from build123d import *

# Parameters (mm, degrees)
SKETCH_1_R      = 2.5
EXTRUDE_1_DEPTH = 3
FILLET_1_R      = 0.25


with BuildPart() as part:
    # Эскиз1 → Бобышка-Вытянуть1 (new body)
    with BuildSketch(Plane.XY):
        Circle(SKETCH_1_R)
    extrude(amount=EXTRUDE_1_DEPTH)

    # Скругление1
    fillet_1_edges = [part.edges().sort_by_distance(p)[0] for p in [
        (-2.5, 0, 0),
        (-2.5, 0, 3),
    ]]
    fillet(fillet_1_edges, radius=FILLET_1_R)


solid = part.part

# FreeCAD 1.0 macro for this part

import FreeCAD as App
import Part
import Sketcher

V = App.Vector


def edges_at(feature, points):
    """Names of the edges that pass closest to the given points."""
    edges = feature.Shape.Edges
    near = lambda p: min(range(len(edges)), key=lambda i: edges[i].distToShape(Part.Vertex(*p))[0])
    return sorted({f"Edge{near(p) + 1}" for p in points})

doc = App.newDocument("Part")
body = doc.addObject("PartDesign::Body", "Body")

sketch1 = body.newObject("Sketcher::SketchObject", "Sketch")
sketch1.AttachmentSupport = (doc.getObject("XY_Plane"), [""])
sketch1.MapMode = "FlatFace"
sketch1.addGeometry(Part.Circle(V(0, 0, 0), V(0, 0, 1), 2.5), False)
sketch1.addConstraint([
    Sketcher.Constraint("Coincident", 0, 3, -1, 1),
    Sketcher.Constraint("Diameter", 0, 5.0),
])
pad1 = body.newObject("PartDesign::Pad", "Pad")
pad1.Profile = sketch1
pad1.Length = 3
doc.recompute()

fillet = body.newObject("PartDesign::Fillet", "Fillet")
fillet.Base = (pad1, edges_at(pad1, [(-2.5, 0, 0), (-2.5, 0, 3)]))
fillet.Radius = 0.25

doc.recompute()
